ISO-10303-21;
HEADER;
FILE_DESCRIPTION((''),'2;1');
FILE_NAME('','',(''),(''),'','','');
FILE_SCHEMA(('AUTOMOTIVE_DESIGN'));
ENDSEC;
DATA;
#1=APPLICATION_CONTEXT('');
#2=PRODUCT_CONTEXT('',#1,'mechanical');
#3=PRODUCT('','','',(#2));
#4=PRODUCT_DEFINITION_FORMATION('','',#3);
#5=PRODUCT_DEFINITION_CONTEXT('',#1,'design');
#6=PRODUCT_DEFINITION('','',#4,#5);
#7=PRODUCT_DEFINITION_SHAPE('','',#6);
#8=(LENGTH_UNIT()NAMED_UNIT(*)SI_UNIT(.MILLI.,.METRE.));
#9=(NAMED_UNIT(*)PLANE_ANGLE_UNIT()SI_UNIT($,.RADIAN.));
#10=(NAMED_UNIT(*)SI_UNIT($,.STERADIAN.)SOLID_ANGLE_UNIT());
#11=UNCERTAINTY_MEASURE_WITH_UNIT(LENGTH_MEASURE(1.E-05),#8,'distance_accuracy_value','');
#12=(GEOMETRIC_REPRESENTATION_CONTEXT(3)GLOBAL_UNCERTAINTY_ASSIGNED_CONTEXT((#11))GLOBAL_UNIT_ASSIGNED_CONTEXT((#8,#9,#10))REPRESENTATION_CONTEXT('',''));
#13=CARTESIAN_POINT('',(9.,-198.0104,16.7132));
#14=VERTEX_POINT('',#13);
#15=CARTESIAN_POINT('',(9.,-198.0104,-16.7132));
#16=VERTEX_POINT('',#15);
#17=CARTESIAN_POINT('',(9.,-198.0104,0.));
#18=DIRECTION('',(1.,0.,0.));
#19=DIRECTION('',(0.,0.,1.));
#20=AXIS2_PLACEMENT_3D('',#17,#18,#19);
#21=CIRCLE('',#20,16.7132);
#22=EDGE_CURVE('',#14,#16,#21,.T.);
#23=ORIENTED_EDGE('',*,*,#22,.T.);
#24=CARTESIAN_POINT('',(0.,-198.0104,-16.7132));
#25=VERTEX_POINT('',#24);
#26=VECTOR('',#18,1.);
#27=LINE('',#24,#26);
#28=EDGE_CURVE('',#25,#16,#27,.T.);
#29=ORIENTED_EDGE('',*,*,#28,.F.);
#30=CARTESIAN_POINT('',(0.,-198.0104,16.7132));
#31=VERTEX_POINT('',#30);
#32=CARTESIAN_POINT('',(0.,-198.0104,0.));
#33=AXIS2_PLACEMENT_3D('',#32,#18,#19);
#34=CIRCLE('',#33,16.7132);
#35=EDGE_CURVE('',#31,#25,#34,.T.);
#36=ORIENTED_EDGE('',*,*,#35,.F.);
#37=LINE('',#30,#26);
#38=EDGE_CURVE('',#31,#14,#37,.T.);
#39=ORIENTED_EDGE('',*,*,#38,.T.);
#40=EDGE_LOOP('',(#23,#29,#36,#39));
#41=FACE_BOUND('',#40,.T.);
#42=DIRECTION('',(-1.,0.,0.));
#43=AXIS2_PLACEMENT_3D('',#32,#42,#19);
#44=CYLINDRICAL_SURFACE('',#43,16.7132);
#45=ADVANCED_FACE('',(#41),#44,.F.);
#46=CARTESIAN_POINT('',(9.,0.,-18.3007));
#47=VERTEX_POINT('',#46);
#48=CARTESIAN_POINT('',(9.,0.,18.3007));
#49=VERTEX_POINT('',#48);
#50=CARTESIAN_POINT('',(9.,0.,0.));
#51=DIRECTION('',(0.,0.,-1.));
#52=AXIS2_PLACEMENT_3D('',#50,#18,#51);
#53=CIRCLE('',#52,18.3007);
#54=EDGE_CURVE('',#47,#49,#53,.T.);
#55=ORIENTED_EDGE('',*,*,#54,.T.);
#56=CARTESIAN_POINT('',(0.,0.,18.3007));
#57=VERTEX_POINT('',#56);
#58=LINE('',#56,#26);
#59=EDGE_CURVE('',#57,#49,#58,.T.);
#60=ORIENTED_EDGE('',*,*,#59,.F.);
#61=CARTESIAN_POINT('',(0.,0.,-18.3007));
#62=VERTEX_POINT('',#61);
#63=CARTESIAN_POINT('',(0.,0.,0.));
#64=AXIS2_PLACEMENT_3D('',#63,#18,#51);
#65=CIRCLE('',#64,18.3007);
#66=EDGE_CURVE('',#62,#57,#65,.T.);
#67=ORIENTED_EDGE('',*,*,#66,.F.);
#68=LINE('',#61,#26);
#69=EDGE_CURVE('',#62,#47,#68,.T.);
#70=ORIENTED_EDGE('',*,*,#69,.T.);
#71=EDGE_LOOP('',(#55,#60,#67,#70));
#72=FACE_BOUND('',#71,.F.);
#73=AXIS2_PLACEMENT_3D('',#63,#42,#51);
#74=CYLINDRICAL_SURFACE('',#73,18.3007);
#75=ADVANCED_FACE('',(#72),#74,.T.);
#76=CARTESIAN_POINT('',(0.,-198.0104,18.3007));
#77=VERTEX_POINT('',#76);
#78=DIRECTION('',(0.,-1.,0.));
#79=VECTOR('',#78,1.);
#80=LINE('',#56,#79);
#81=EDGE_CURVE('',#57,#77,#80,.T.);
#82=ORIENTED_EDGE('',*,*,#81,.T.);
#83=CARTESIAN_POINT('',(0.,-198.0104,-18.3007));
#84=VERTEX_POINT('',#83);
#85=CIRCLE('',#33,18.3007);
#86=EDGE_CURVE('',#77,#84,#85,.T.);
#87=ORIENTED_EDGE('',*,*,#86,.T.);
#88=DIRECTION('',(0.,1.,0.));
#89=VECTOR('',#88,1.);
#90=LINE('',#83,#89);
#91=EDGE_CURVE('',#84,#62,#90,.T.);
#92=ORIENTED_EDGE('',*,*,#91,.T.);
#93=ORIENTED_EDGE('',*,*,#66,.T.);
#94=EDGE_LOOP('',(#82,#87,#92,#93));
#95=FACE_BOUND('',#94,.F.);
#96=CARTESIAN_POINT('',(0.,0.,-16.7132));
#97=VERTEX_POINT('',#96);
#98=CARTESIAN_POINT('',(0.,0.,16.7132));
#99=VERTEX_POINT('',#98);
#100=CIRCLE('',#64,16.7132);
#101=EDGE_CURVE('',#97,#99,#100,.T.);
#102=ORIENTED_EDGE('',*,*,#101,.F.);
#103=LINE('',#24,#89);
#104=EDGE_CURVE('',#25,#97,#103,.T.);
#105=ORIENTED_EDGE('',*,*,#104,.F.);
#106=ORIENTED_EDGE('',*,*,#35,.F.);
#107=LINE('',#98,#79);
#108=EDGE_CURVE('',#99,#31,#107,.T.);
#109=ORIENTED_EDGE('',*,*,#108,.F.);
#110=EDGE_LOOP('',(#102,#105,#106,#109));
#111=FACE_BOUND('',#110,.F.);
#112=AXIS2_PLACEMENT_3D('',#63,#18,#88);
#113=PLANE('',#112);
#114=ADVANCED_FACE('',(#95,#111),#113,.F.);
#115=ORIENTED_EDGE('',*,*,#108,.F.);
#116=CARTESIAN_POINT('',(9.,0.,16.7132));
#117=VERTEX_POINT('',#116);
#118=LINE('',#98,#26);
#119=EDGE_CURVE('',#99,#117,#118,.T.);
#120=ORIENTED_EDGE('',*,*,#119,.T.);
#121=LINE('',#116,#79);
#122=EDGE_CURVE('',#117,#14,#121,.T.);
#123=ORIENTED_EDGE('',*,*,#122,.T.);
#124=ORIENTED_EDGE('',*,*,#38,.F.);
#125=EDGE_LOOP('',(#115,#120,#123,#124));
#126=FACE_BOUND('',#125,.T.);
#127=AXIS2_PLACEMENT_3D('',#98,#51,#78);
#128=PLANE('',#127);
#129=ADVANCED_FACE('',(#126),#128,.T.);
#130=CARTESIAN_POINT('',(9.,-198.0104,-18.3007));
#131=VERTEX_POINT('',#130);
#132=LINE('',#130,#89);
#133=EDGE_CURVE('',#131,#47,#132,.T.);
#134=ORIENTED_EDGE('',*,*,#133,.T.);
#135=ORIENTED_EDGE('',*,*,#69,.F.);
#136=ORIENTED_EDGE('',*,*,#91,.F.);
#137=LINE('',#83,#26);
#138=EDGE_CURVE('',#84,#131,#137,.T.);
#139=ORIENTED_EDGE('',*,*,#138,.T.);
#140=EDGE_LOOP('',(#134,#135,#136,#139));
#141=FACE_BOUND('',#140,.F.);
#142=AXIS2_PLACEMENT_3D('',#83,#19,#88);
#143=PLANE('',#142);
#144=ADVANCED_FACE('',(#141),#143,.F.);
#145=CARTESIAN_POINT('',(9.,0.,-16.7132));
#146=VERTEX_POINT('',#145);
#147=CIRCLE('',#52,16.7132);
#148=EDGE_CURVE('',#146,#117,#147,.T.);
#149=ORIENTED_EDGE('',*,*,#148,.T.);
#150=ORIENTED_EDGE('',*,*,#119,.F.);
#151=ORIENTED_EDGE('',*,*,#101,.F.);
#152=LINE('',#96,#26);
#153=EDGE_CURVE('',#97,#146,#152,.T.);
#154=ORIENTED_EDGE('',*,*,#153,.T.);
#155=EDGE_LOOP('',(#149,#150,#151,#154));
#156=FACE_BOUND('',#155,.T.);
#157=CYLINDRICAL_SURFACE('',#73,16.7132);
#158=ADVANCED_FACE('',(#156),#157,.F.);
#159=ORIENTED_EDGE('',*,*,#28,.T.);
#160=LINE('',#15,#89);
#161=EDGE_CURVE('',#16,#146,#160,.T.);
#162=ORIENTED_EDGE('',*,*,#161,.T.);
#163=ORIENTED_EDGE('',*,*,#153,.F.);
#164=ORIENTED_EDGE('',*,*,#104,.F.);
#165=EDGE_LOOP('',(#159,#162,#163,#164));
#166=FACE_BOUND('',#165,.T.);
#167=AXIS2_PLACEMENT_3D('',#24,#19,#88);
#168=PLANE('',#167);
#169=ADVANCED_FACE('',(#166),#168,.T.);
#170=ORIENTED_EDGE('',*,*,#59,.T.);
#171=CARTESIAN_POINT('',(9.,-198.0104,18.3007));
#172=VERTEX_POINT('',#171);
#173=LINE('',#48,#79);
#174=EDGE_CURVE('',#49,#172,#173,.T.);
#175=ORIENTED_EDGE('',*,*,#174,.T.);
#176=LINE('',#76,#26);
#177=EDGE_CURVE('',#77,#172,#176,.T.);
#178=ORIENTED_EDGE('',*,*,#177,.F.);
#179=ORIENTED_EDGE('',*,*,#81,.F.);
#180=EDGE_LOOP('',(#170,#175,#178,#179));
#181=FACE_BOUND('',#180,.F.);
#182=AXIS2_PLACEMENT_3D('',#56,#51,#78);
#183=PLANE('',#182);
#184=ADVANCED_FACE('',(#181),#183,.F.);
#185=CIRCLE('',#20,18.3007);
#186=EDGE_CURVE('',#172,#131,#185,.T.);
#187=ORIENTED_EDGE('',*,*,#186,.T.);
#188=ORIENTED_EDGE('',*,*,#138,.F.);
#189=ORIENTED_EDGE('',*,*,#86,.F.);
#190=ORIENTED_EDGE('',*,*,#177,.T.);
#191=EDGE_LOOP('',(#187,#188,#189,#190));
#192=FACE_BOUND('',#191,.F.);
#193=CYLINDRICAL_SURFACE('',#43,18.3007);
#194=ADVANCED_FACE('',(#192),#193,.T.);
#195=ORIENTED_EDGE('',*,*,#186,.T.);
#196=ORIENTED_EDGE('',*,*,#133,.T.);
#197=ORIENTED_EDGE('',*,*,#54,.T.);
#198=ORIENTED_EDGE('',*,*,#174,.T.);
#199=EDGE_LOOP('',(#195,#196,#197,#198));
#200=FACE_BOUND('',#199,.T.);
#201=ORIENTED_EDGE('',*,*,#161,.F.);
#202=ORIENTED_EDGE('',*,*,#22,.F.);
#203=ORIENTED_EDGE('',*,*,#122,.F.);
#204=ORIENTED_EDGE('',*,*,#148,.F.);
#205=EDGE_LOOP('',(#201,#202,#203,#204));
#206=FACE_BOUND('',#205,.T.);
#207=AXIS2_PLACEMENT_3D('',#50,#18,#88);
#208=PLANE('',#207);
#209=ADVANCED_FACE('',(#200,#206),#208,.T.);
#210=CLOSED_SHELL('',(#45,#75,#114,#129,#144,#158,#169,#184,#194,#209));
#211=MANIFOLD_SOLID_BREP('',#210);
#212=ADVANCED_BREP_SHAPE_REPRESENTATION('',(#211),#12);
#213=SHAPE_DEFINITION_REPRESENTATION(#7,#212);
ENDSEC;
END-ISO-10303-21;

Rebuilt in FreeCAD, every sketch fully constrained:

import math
import FreeCAD as App
import Part
import Sketcher
from FreeCAD import Vector
Q = App.Units.Quantity

doc = App.newDocument("Part")
body = doc.addObject("PartDesign::Body", "Body")

sketch1 = body.newObject("Sketcher::SketchObject", "Sketch")
sketch1.AttachmentSupport = (doc.getObject("YZ_Plane"), [""])
sketch1.MapMode = "FlatFace"
sketch1.addGeometry([
    Part.LineSegment(Vector(0, 18, 0), Vector(-198, 18, 0)),
    Part.ArcOfCircle(Part.Circle(Vector(-198, 0, 0), Vector(0, 0, 1), 18), math.radians(90), math.radians(270)),
    Part.LineSegment(Vector(-198, -18, 0), Vector(0, -18, 0)),
    Part.ArcOfCircle(Part.Circle(Vector(0, 0, 0), Vector(0, 0, 1), 18), math.radians(-90), math.radians(90)),
    Part.ArcOfCircle(Part.Circle(Vector(0, 0, 0), Vector(0, 0, 1), 17), math.radians(-90), math.radians(90)),
    Part.LineSegment(Vector(0, -17, 0), Vector(-198, -17, 0)),
    Part.ArcOfCircle(Part.Circle(Vector(-198, 0, 0), Vector(0, 0, 1), 17), math.radians(90), math.radians(270)),
    Part.LineSegment(Vector(-198, 17, 0), Vector(0, 17, 0)),
], False)
sketch1.addConstraint([
    Sketcher.Constraint("Tangent", 0, 2, 1, 1),
    Sketcher.Constraint("Tangent", 1, 2, 2, 1),
    Sketcher.Constraint("Tangent", 2, 2, 3, 1),
    Sketcher.Constraint("Tangent", 3, 2, 0, 1),
    Sketcher.Constraint("Tangent", 4, 1, 5, 1),
    Sketcher.Constraint("Tangent", 5, 2, 6, 2),
    Sketcher.Constraint("Tangent", 6, 1, 7, 1),
    Sketcher.Constraint("Tangent", 7, 2, 4, 2),
    Sketcher.Constraint("Horizontal", 0),
    Sketcher.Constraint("Horizontal", 2),
    Sketcher.Constraint("Horizontal", 5),
    Sketcher.Constraint("Horizontal", 7),
    Sketcher.Constraint("Coincident", 3, 3, -1, 1),
    Sketcher.Constraint("Coincident", 4, 3, -1, 1),
    Sketcher.Constraint("Vertical", 6, 3, 0, 2),
    Sketcher.Constraint("Radius", 4, Q("0.658 in")),
    Sketcher.Constraint("DistanceY", 2, 2, 4, 1, Q("0.0625 in")),
    Sketcher.Constraint("DistanceX", 0, 2, 0, 1, Q("198.0104 mm")),
])
pad1 = body.newObject("PartDesign::Pad", "Pad")
pad1.Profile = sketch1
pad1.Length = 9

doc.recompute()
